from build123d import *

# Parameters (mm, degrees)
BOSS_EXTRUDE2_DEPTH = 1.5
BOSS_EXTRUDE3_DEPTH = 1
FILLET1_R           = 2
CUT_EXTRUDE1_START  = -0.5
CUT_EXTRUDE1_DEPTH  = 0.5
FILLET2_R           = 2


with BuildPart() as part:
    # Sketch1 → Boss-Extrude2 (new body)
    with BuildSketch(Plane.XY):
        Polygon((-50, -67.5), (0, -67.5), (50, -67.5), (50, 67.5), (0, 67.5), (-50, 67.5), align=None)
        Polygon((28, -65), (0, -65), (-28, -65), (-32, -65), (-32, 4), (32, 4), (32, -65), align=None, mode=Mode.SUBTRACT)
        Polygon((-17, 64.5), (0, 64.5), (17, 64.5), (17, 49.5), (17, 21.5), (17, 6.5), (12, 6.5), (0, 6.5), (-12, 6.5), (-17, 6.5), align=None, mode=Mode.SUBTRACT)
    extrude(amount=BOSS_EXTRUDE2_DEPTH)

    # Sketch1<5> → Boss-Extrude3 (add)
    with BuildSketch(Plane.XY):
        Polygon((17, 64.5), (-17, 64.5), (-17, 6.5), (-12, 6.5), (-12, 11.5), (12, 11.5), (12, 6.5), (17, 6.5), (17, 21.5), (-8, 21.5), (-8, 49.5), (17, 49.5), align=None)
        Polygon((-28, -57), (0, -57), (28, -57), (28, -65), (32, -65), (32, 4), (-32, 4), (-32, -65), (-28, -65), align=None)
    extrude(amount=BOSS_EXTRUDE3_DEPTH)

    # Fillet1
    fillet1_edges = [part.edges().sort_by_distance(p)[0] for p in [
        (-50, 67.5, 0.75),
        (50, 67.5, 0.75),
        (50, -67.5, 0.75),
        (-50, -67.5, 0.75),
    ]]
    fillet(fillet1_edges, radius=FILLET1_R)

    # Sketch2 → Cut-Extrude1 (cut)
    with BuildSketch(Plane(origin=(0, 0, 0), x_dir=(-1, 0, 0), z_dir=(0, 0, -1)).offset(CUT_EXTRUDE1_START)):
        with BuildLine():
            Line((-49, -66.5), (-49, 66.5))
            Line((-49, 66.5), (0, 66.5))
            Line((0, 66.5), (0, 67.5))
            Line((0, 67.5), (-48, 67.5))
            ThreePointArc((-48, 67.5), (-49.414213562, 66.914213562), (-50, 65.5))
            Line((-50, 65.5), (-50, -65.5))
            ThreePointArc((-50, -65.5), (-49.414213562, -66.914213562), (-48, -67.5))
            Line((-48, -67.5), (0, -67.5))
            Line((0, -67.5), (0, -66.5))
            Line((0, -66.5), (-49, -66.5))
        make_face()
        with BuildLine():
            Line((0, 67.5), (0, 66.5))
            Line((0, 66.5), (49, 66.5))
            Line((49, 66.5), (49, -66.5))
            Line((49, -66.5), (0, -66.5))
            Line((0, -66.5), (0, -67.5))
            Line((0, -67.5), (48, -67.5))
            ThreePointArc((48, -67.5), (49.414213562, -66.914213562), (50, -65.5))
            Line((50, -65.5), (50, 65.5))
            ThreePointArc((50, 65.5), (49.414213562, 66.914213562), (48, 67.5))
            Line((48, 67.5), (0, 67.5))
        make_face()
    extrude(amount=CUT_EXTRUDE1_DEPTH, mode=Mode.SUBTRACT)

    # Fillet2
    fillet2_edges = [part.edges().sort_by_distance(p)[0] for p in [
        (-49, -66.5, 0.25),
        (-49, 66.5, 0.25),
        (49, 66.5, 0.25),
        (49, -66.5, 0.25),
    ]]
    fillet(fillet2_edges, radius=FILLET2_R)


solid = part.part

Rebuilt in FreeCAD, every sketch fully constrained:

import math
import FreeCAD as App
import Part
import Sketcher
Q = App.Units.Quantity


def edges_at(feature, points):
    """Names of the edges that pass closest to the given points."""
    edges = feature.Shape.Edges
    near = lambda p: min(range(len(edges)), key=lambda i: edges[i].distToShape(Part.Vertex(*p))[0])
    return sorted({f"Edge{near(p) + 1}" for p in points})

doc = App.newDocument("Part")
body = doc.addObject("PartDesign::Body", "Body")

sketch1 = body.newObject("Sketcher::SketchObject", "Sketch")
sketch1.AttachmentSupport = (doc.getObject("XY_Plane"), [""])
sketch1.MapMode = "FlatFace"
sketch1.addGeometry([
    Part.LineSegment(App.Vector(-50, -68, 0), App.Vector(50, -68, 0)),
    Part.LineSegment(App.Vector(50, -68, 0), App.Vector(50, 68, 0)),
    Part.LineSegment(App.Vector(50, 68, 0), App.Vector(-50, 68, 0)),
    Part.LineSegment(App.Vector(-50, 68, 0), App.Vector(-50, -68, 0)),
    Part.LineSegment(App.Vector(32, -65, 0), App.Vector(-32, -65, 0)),
    Part.LineSegment(App.Vector(-32, -65, 0), App.Vector(-32, 4, 0)),
    Part.LineSegment(App.Vector(-32, 4, 0), App.Vector(32, 4, 0)),
    Part.LineSegment(App.Vector(32, 4, 0), App.Vector(32, -65, 0)),
    Part.LineSegment(App.Vector(-17, 6, 0), App.Vector(-17, 64, 0)),
    Part.LineSegment(App.Vector(-17, 64, 0), App.Vector(17, 64, 0)),
    Part.LineSegment(App.Vector(17, 64, 0), App.Vector(17, 6, 0)),
    Part.LineSegment(App.Vector(17, 6, 0), App.Vector(-17, 6, 0)),
], False)
sketch1.addConstraint([
    Sketcher.Constraint("Coincident", 0, 2, 1, 1),
    Sketcher.Constraint("Coincident", 1, 2, 2, 1),
    Sketcher.Constraint("Coincident", 2, 2, 3, 1),
    Sketcher.Constraint("Coincident", 3, 2, 0, 1),
    Sketcher.Constraint("Coincident", 4, 2, 5, 1),
    Sketcher.Constraint("Coincident", 5, 2, 6, 1),
    Sketcher.Constraint("Coincident", 6, 2, 7, 1),
    Sketcher.Constraint("Coincident", 7, 2, 4, 1),
    Sketcher.Constraint("Coincident", 8, 2, 9, 1),
    Sketcher.Constraint("Coincident", 9, 2, 10, 1),
    Sketcher.Constraint("Coincident", 10, 2, 11, 1),
    Sketcher.Constraint("Coincident", 11, 2, 8, 1),
    Sketcher.Constraint("Horizontal", 0),
    Sketcher.Constraint("Vertical", 1),
    Sketcher.Constraint("Horizontal", 2),
    Sketcher.Constraint("Vertical", 3),
    Sketcher.Constraint("Horizontal", 4),
    Sketcher.Constraint("Vertical", 5),
    Sketcher.Constraint("Horizontal", 6),
    Sketcher.Constraint("Vertical", 7),
    Sketcher.Constraint("Vertical", 8),
    Sketcher.Constraint("Horizontal", 9),
    Sketcher.Constraint("Vertical", 10),
    Sketcher.Constraint("Horizontal", 11),
    Sketcher.Constraint("Symmetric", 0, 2, 2, 2, -1, 1),
    Sketcher.Constraint("DistanceX", 0, 1, 0, 2, Q("100 mm")),
    Sketcher.Constraint("DistanceX", 4, 2, 4, 1, Q("64 mm")),
    Sketcher.Constraint("DistanceX", 9, 1, 9, 2, Q("34 mm")),
    Sketcher.Constraint("DistanceY", 1, 1, 1, 2, Q("135 mm")),
    Sketcher.Constraint("DistanceY", 5, 1, 5, 2, Q("69 mm")),
    Sketcher.Constraint("DistanceY", 8, 1, 8, 2, Q("58 mm")),
    Sketcher.Constraint("DistanceX", 4, 2, -1, 1, Q("32 mm")),
    Sketcher.Constraint("DistanceY", 4, 2, -1, 1, Q("65 mm")),
    Sketcher.Constraint("DistanceX", 8, 2, -1, 1, Q("17 mm")),
    Sketcher.Constraint("DistanceY", 8, 2, 2, 2, Q("3 mm")),
])
pad1 = body.newObject("PartDesign::Pad", "Pad")
pad1.Profile = sketch1
pad1.Length = 1.5

sketch2 = body.newObject("Sketcher::SketchObject", "Sketch001")
sketch2.AttachmentSupport = (doc.getObject("XY_Plane"), [""])
sketch2.MapMode = "FlatFace"
sketch2.addGeometry([
    Part.LineSegment(App.Vector(17, 64.5, 0), App.Vector(-17, 64.5, 0)),
    Part.LineSegment(App.Vector(-17, 64.5, 0), App.Vector(-17, 6.5, 0)),
    Part.LineSegment(App.Vector(-17, 6.5, 0), App.Vector(-12, 6.5, 0)),
    Part.LineSegment(App.Vector(-12, 6.5, 0), App.Vector(-12, 11.5, 0)),
    Part.LineSegment(App.Vector(-12, 11.5, 0), App.Vector(12, 11.5, 0)),
    Part.LineSegment(App.Vector(12, 11.5, 0), App.Vector(12, 6.5, 0)),
    Part.LineSegment(App.Vector(12, 6.5, 0), App.Vector(17, 6.5, 0)),
    Part.LineSegment(App.Vector(17, 6.5, 0), App.Vector(17, 21.5, 0)),
    Part.LineSegment(App.Vector(17, 21.5, 0), App.Vector(-8, 21.5, 0)),
    Part.LineSegment(App.Vector(-8, 21.5, 0), App.Vector(-8, 49.5, 0)),
    Part.LineSegment(App.Vector(-8, 49.5, 0), App.Vector(17, 49.5, 0)),
    Part.LineSegment(App.Vector(17, 49.5, 0), App.Vector(17, 64.5, 0)),
    Part.LineSegment(App.Vector(-28, -57, 0), App.Vector(28, -57, 0)),
    Part.LineSegment(App.Vector(28, -57, 0), App.Vector(28, -65, 0)),
    Part.LineSegment(App.Vector(28, -65, 0), App.Vector(32, -65, 0)),
    Part.LineSegment(App.Vector(32, -65, 0), App.Vector(32, 4, 0)),
    Part.LineSegment(App.Vector(32, 4, 0), App.Vector(-32, 4, 0)),
    Part.LineSegment(App.Vector(-32, 4, 0), App.Vector(-32, -65, 0)),
    Part.LineSegment(App.Vector(-32, -65, 0), App.Vector(-28, -65, 0)),
    Part.LineSegment(App.Vector(-28, -65, 0), App.Vector(-28, -57, 0)),
], False)
sketch2.addConstraint([
    Sketcher.Constraint("Coincident", 0, 2, 1, 1),
    Sketcher.Constraint("Coincident", 1, 2, 2, 1),
    Sketcher.Constraint("Coincident", 2, 2, 3, 1),
    Sketcher.Constraint("Coincident", 3, 2, 4, 1),
    Sketcher.Constraint("Coincident", 4, 2, 5, 1),
    Sketcher.Constraint("Coincident", 5, 2, 6, 1),
    Sketcher.Constraint("Coincident", 6, 2, 7, 1),
    Sketcher.Constraint("Coincident", 7, 2, 8, 1),
    Sketcher.Constraint("Coincident", 8, 2, 9, 1),
    Sketcher.Constraint("Coincident", 9, 2, 10, 1),
    Sketcher.Constraint("Coincident", 10, 2, 11, 1),
    Sketcher.Constraint("Coincident", 11, 2, 0, 1),
    Sketcher.Constraint("Coincident", 12, 2, 13, 1),
    Sketcher.Constraint("Coincident", 13, 2, 14, 1),
    Sketcher.Constraint("Coincident", 14, 2, 15, 1),
    Sketcher.Constraint("Coincident", 15, 2, 16, 1),
    Sketcher.Constraint("Coincident", 16, 2, 17, 1),
    Sketcher.Constraint("Coincident", 17, 2, 18, 1),
    Sketcher.Constraint("Coincident", 18, 2, 19, 1),
    Sketcher.Constraint("Coincident", 19, 2, 12, 1),
    Sketcher.Constraint("Horizontal", 0),
    Sketcher.Constraint("Vertical", 1),
    Sketcher.Constraint("Horizontal", 2),
    Sketcher.Constraint("Vertical", 3),
    Sketcher.Constraint("Horizontal", 4),
    Sketcher.Constraint("Vertical", 5),
    Sketcher.Constraint("Horizontal", 6),
    Sketcher.Constraint("Vertical", 7),
    Sketcher.Constraint("Horizontal", 8),
    Sketcher.Constraint("Vertical", 9),
    Sketcher.Constraint("Horizontal", 10),
    Sketcher.Constraint("Vertical", 11),
    Sketcher.Constraint("Horizontal", 12),
    Sketcher.Constraint("Vertical", 13),
    Sketcher.Constraint("Horizontal", 14),
    Sketcher.Constraint("Vertical", 15),
    Sketcher.Constraint("Horizontal", 16),
    Sketcher.Constraint("Vertical", 17),
    Sketcher.Constraint("Horizontal", 18),
    Sketcher.Constraint("Vertical", 19),
    Sketcher.Constraint("Symmetric", 2, 2, 5, 2, -2),
    Sketcher.Constraint("Symmetric", 14, 2, 17, 2, -2),
    Sketcher.Constraint("Vertical", 7, 2, 10, 2),
    Sketcher.Constraint("Equal", 2, 6),
    Sketcher.Constraint("Equal", 14, 18),
    Sketcher.Constraint("Equal", 6, 3),
    Sketcher.Constraint("Equal", 7, 11),
    Sketcher.Constraint("DistanceX", 0, 2, 0, 1, Q("34 mm")),
    Sketcher.Constraint("DistanceX", 2, 1, 2, 2, Q("5 mm")),
    Sketcher.Constraint("DistanceX", 8, 2, 8, 1, Q("25 mm")),
    Sketcher.Constraint("DistanceX", 12, 1, 12, 2, Q("56 mm")),
    Sketcher.Constraint("DistanceX", 14, 1, 14, 2, Q("4 mm")),
    Sketcher.Constraint("DistanceY", 1, 2, 1, 1, Q("58 mm")),
    Sketcher.Constraint("DistanceY", 7, 1, 7, 2, Q("15 mm")),
    Sketcher.Constraint("DistanceY", 13, 2, 13, 1, Q("8 mm")),
    Sketcher.Constraint("DistanceY", 15, 1, 15, 2, Q("69 mm")),
    Sketcher.Constraint("DistanceY", 12, 2, -1, 1, Q("57 mm")),
    Sketcher.Constraint("DistanceY", -1, 1, 0, 2, Q("64.5 mm")),
])
pad2 = body.newObject("PartDesign::Pad", "Pad001")
pad2.Profile = sketch2
pad2.Length = 1
doc.recompute()

fillet = body.newObject("PartDesign::Fillet", "Fillet")
fillet.Base = (pad2, edges_at(pad2, [
    (-50, 67.5, 0.75),
    (50, 67.5, 0.75),
    (50, -67.5, 0.75),
    (-50, -67.5, 0.75),
]))
fillet.Radius = 2

sketch3 = body.newObject("Sketcher::SketchObject", "Sketch002")
sketch3.AttachmentSupport = (doc.getObject("XY_Plane"), [""])
sketch3.MapMode = "FlatFace"
sketch3.AttachmentOffset = App.Placement(App.Vector(0, 0, 0.5), App.Rotation())
sketch3.addGeometry([
    Part.ArcOfCircle(Part.Circle(App.Vector(48, 65.5, 0), App.Vector(0, 0, 1), 2), math.radians(0), math.radians(90)),
    Part.LineSegment(App.Vector(50, 65.5, 0), App.Vector(50, -65.5, 0)),
    Part.ArcOfCircle(Part.Circle(App.Vector(48, -65.5, 0), App.Vector(0, 0, 1), 2), math.radians(-90), math.radians(0)),
    Part.LineSegment(App.Vector(48, -67.5, 0), App.Vector(-48, -67.5, 0)),
    Part.ArcOfCircle(Part.Circle(App.Vector(-48, -65.5, 0), App.Vector(0, 0, 1), 2), math.radians(-180), math.radians(-90)),
    Part.LineSegment(App.Vector(-50, -65.5, 0), App.Vector(-50, 65.5, 0)),
    Part.ArcOfCircle(Part.Circle(App.Vector(-48, 65.5, 0), App.Vector(0, 0, 1), 2), math.radians(90), math.radians(180)),
    Part.LineSegment(App.Vector(-48, 67.5, 0), App.Vector(48, 67.5, 0)),
    Part.LineSegment(App.Vector(49, -66.5, 0), App.Vector(49, 66.5, 0)),
    Part.LineSegment(App.Vector(49, 66.5, 0), App.Vector(-49, 66.5, 0)),
    Part.LineSegment(App.Vector(-49, 66.5, 0), App.Vector(-49, -66.5, 0)),
    Part.LineSegment(App.Vector(-49, -66.5, 0), App.Vector(49, -66.5, 0)),
], False)
sketch3.addConstraint([
    Sketcher.Constraint("Tangent", 0, 1, 1, 1),
    Sketcher.Constraint("Tangent", 1, 2, 2, 2),
    Sketcher.Constraint("Tangent", 2, 1, 3, 1),
    Sketcher.Constraint("Tangent", 3, 2, 4, 2),
    Sketcher.Constraint("Tangent", 4, 1, 5, 1),
    Sketcher.Constraint("Tangent", 5, 2, 6, 2),
    Sketcher.Constraint("Tangent", 6, 1, 7, 1),
    Sketcher.Constraint("Tangent", 7, 2, 0, 2),
    Sketcher.Constraint("Coincident", 8, 2, 9, 1),
    Sketcher.Constraint("Coincident", 9, 2, 10, 1),
    Sketcher.Constraint("Coincident", 10, 2, 11, 1),
    Sketcher.Constraint("Coincident", 11, 2, 8, 1),
    Sketcher.Constraint("Vertical", 1),
    Sketcher.Constraint("Horizontal", 3),
    Sketcher.Constraint("Vertical", 5),
    Sketcher.Constraint("Horizontal", 7),
    Sketcher.Constraint("Vertical", 8),
    Sketcher.Constraint("Horizontal", 9),
    Sketcher.Constraint("Vertical", 10),
    Sketcher.Constraint("Horizontal", 11),
    Sketcher.Constraint("Equal", 0, 2),
    Sketcher.Constraint("Equal", 2, 4),
    Sketcher.Constraint("Equal", 4, 6),
    Sketcher.Constraint("Symmetric", 0, 3, 4, 3, -1, 1),
    Sketcher.Constraint("Symmetric", 8, 2, 10, 2, -1, 1),
    Sketcher.Constraint("Radius", 0, Q("2 mm")),
    Sketcher.Constraint("DistanceX", 3, 2, 3, 1, Q("96 mm")),
    Sketcher.Constraint("DistanceX", 9, 2, 9, 1, Q("98 mm")),
    Sketcher.Constraint("DistanceY", 1, 2, 1, 1, Q("131 mm")),
    Sketcher.Constraint("DistanceY", 8, 1, 8, 2, Q("133 mm")),
])
pocket1 = body.newObject("PartDesign::Pocket", "Pocket")
pocket1.Profile = sketch3
pocket1.Length = 0.5
doc.recompute()

fillet2 = body.newObject("PartDesign::Fillet", "Fillet001")
fillet2.Base = (pocket1, edges_at(pocket1, [
    (-49, -66.5, 0.25),
    (-49, 66.5, 0.25),
    (49, 66.5, 0.25),
    (49, -66.5, 0.25),
]))
fillet2.Radius = 2

doc.recompute()
